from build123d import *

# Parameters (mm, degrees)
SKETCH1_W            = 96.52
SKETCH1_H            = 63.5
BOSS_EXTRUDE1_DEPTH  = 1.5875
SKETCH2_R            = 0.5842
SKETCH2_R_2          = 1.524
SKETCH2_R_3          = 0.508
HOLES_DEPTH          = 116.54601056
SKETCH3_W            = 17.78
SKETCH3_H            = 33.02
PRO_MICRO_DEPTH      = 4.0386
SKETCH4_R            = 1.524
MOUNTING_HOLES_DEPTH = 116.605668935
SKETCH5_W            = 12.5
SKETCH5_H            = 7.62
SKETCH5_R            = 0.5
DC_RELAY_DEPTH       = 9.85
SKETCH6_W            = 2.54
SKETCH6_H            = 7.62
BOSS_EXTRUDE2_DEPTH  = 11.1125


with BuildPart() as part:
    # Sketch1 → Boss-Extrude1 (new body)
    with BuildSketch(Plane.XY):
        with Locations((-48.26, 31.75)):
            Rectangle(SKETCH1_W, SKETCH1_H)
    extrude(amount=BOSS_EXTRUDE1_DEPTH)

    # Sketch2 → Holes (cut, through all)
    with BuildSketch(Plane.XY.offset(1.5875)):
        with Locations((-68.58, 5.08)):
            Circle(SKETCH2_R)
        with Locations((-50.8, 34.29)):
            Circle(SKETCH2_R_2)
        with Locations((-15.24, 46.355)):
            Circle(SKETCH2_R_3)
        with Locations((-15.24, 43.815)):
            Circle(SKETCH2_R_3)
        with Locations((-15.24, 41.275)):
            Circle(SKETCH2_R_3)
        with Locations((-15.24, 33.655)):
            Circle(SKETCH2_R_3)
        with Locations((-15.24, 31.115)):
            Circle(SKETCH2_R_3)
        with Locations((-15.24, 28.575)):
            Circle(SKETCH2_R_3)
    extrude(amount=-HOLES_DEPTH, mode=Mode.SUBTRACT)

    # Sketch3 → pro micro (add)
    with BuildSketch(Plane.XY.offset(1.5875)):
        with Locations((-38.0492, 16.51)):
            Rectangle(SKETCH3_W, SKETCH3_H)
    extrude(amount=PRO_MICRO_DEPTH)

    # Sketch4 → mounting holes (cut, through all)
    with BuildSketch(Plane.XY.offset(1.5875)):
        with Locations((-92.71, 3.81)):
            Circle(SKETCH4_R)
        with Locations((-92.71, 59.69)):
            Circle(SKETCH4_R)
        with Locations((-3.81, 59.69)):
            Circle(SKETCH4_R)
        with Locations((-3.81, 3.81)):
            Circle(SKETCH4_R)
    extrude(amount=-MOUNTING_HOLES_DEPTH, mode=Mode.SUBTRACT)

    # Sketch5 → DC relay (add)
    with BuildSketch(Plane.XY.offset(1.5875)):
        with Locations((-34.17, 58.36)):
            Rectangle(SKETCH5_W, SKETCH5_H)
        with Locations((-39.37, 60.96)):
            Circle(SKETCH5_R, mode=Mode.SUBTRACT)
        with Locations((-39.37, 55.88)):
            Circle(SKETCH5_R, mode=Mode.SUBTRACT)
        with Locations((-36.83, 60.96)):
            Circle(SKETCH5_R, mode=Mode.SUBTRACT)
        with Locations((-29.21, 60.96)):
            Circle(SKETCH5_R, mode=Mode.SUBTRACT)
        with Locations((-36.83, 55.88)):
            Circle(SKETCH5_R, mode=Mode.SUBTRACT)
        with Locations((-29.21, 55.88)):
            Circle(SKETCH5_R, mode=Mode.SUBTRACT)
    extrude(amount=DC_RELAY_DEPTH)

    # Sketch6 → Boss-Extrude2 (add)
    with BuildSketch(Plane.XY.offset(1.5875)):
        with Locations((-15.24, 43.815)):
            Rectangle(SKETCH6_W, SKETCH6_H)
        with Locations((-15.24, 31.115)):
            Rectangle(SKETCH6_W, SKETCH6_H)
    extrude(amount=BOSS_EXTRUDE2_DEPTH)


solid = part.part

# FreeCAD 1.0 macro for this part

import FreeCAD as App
import Part
import Sketcher
Q = App.Units.Quantity


def add_polygon(sketch, points):
    """Adds a closed chain of lines whose ends are joined by coincident constraints."""
    first, n = sketch.GeometryCount, len(points)
    for a, b in zip(points, points[1:] + points[:1]):
        sketch.addGeometry(Part.LineSegment(App.Vector(*a, 0), App.Vector(*b, 0)), False)
    for i in range(n):
        sketch.addConstraint(Sketcher.Constraint("Coincident", first + i, 2, first + (i + 1) % n, 1))

doc = App.newDocument("Part")
body = doc.addObject("PartDesign::Body", "Body")

# Sketch on XY plane
sketch1 = body.newObject("Sketcher::SketchObject", "Sketch")
sketch1.AttachmentSupport = (doc.getObject("XY_Plane"), [""])
sketch1.MapMode = "FlatFace"
add_polygon(sketch1, [(-97, 64), (-97, 0), (0, 0), (0, 64)])  # lines 0-3
sketch1.addConstraint([
    Sketcher.Constraint("Vertical", 0),
    Sketcher.Constraint("Horizontal", 1),
    Sketcher.Constraint("Vertical", 2),
    Sketcher.Constraint("Horizontal", 3),
    Sketcher.Constraint("Coincident", 1, 2, -1, 1),
    Sketcher.Constraint("DistanceX", 1, 1, 1, 2, Q("3.8 in")),
    Sketcher.Constraint("DistanceY", 0, 2, 0, 1, Q("2.5 in")),
])
pad1 = body.newObject("PartDesign::Pad", "Pad")
pad1.Profile = sketch1
pad1.Length = Q("0.0625 in")

# Sketch on XY plane
sketch2 = body.newObject("Sketcher::SketchObject", "Sketch001")
sketch2.AttachmentSupport = (doc.getObject("XY_Plane"), [""])
sketch2.MapMode = "FlatFace"
sketch2.AttachmentOffset = App.Placement(App.Vector(0, 0, 0.0625 * 25.4), App.Rotation())
sketch2.addGeometry([
    Part.Circle(App.Vector(-68.6, 5.1, 0), App.Vector(0, 0, 1), 0.6),  # 0
    Part.Circle(App.Vector(-50.8, 34.3, 0), App.Vector(0, 0, 1), 1.5),  # 1
    Part.Circle(App.Vector(-15.2, 46.4, 0), App.Vector(0, 0, 1), 0.5),  # 2
    Part.Circle(App.Vector(-15.2, 43.8, 0), App.Vector(0, 0, 1), 0.5),  # 3
    Part.Circle(App.Vector(-15.2, 41.3, 0), App.Vector(0, 0, 1), 0.5),  # 4
    Part.Circle(App.Vector(-15.2, 33.7, 0), App.Vector(0, 0, 1), 0.5),  # 5
    Part.Circle(App.Vector(-15.2, 31.1, 0), App.Vector(0, 0, 1), 0.5),  # 6
    Part.Circle(App.Vector(-15.2, 28.6, 0), App.Vector(0, 0, 1), 0.5),  # 7
], False)
sketch2.addConstraint([
    Sketcher.Constraint("Equal", 2, 3),
    Sketcher.Constraint("Equal", 3, 4),
    Sketcher.Constraint("Equal", 4, 5),
    Sketcher.Constraint("Equal", 5, 6),
    Sketcher.Constraint("Equal", 6, 7),
    Sketcher.Constraint("Vertical", 2, 3, 3, 3),
    Sketcher.Constraint("Vertical", 3, 3, 4, 3),
    Sketcher.Constraint("Vertical", 4, 3, 5, 3),
    Sketcher.Constraint("Vertical", 5, 3, 6, 3),
    Sketcher.Constraint("Vertical", 6, 3, 7, 3),
    Sketcher.Constraint("Diameter", 1, Q("0.12 in")),
    Sketcher.Constraint("Diameter", 2, Q("0.04 in")),
    Sketcher.Constraint("Diameter", 0, Q("0.046 in")),
    Sketcher.Constraint("DistanceX", 1, 3, -1, 1, Q("2 in")),
    Sketcher.Constraint("DistanceX", 0, 3, -1, 1, Q("2.7 in")),
    Sketcher.Constraint("DistanceY", -1, 1, 0, 3, Q("0.2 in")),
    Sketcher.Constraint("DistanceX", 2, 3, -1, 1, Q("0.6 in")),
    Sketcher.Constraint("DistanceY", 3, 3, 2, 3, Q("0.1 in")),
    Sketcher.Constraint("DistanceY", 4, 3, 3, 3, Q("0.1 in")),
    Sketcher.Constraint("DistanceY", 5, 3, 4, 3, Q("0.3 in")),
    Sketcher.Constraint("DistanceY", 6, 3, 5, 3, Q("0.1 in")),
    Sketcher.Constraint("DistanceY", 7, 3, 6, 3, Q("0.1 in")),
    Sketcher.Constraint("DistanceY", -1, 1, 1, 3, Q("1.35 in")),
    Sketcher.Constraint("DistanceY", -1, 1, 2, 3, Q("1.825 in")),
])
pocket1 = body.newObject("PartDesign::Pocket", "Pocket")
pocket1.Profile = sketch2
pocket1.Type = "ThroughAll"

# Sketch on XY plane
sketch3 = body.newObject("Sketcher::SketchObject", "Sketch002")
sketch3.AttachmentSupport = (doc.getObject("XY_Plane"), [""])
sketch3.MapMode = "FlatFace"
sketch3.AttachmentOffset = App.Placement(App.Vector(0, 0, 0.0625 * 25.4), App.Rotation())
add_polygon(sketch3, [(-47, 33), (-47, 0), (-29, 0), (-29, 33)])  # lines 0-3
sketch3.addConstraint([
    Sketcher.Constraint("Vertical", 0),
    Sketcher.Constraint("Horizontal", 1),
    Sketcher.Constraint("Vertical", 2),
    Sketcher.Constraint("Horizontal", 3),
    Sketcher.Constraint("PointOnObject", 0, 2, -1),
    Sketcher.Constraint("DistanceX", 1, 1, 1, 2, Q("0.7 in")),
    Sketcher.Constraint("DistanceY", 0, 2, 0, 1, Q("1.3 in")),
    Sketcher.Constraint("DistanceX", 0, 2, -1, 1, Q("1.848 in")),
])
pad2 = body.newObject("PartDesign::Pad", "Pad001")
pad2.Profile = sketch3
pad2.Length = Q("0.159 in")

# Sketch on XY plane
sketch4 = body.newObject("Sketcher::SketchObject", "Sketch003")
sketch4.AttachmentSupport = (doc.getObject("XY_Plane"), [""])
sketch4.MapMode = "FlatFace"
sketch4.AttachmentOffset = App.Placement(App.Vector(0, 0, 0.0625 * 25.4), App.Rotation())
sketch4.addGeometry([
    Part.Circle(App.Vector(-92.7, 3.8, 0), App.Vector(0, 0, 1), 1.5),
    Part.Circle(App.Vector(-92.7, 59.7, 0), App.Vector(0, 0, 1), 1.5),
    Part.Circle(App.Vector(-3.8, 59.7, 0), App.Vector(0, 0, 1), 1.5),
    Part.Circle(App.Vector(-3.8, 3.8, 0), App.Vector(0, 0, 1), 1.5),
], False)
sketch4.addConstraint([
    Sketcher.Constraint("Equal", 0, 1),
    Sketcher.Constraint("Equal", 1, 2),
    Sketcher.Constraint("Equal", 2, 3),
    Sketcher.Constraint("Horizontal", 1, 3, 2, 3),
    Sketcher.Constraint("Horizontal", 0, 3, 3, 3),
    Sketcher.Constraint("Vertical", 0, 3, 1, 3),
    Sketcher.Constraint("Vertical", 2, 3, 3, 3),
    Sketcher.Constraint("Diameter", 0, Q("0.12 in")),
    Sketcher.Constraint("DistanceY", 0, 3, 1, 3, Q("2.2 in")),
    Sketcher.Constraint("DistanceX", 1, 3, 2, 3, Q("3.5 in")),
    Sketcher.Constraint("DistanceX", 0, 3, -1, 1, Q("3.65 in")),
    Sketcher.Constraint("DistanceY", -1, 1, 0, 3, Q("0.15 in")),
])
pocket2 = body.newObject("PartDesign::Pocket", "Pocket001")
pocket2.Profile = sketch4
pocket2.Type = "ThroughAll"

# Sketch on XY plane
sketch5 = body.newObject("Sketcher::SketchObject", "Sketch004")
sketch5.AttachmentSupport = (doc.getObject("XY_Plane"), [""])
sketch5.MapMode = "FlatFace"
sketch5.AttachmentOffset = App.Placement(App.Vector(0, 0, 0.0625 * 25.4), App.Rotation())
add_polygon(sketch5, [(-40.4, 62.2), (-40.4, 54.5), (-27.9, 54.5), (-27.9, 62.2)])  # lines 0-3
sketch5.addGeometry(Part.Circle(App.Vector(-39.4, 55.9, 0), App.Vector(0, 0, 1), 0.5), False)  # 4
sketch5.addGeometry(Part.Circle(App.Vector(-36.8, 55.9, 0), App.Vector(0, 0, 1), 0.5), False)  # 5
sketch5.addGeometry(Part.Circle(App.Vector(-29.2, 55.9, 0), App.Vector(0, 0, 1), 0.5), False)  # 6
sketch5.addGeometry(Part.Circle(App.Vector(-39.4, 61, 0), App.Vector(0, 0, 1), 0.5), False)  # 7
sketch5.addGeometry(Part.Circle(App.Vector(-36.8, 61, 0), App.Vector(0, 0, 1), 0.5), False)  # 8
sketch5.addGeometry(Part.Circle(App.Vector(-29.2, 61, 0), App.Vector(0, 0, 1), 0.5), False)  # 9
sketch5.addConstraint([
    Sketcher.Constraint("Vertical", 0),
    Sketcher.Constraint("Horizontal", 1),
    Sketcher.Constraint("Vertical", 2),
    Sketcher.Constraint("Horizontal", 3),
    Sketcher.Constraint("Equal", 4, 5),
    Sketcher.Constraint("Equal", 5, 6),
    Sketcher.Constraint("Equal", 6, 7),
    Sketcher.Constraint("Equal", 7, 8),
    Sketcher.Constraint("Equal", 8, 9),
    Sketcher.Constraint("Horizontal", 4, 3, 5, 3),
    Sketcher.Constraint("Horizontal", 5, 3, 6, 3),
    Sketcher.Constraint("Horizontal", 7, 3, 8, 3),
    Sketcher.Constraint("Horizontal", 8, 3, 9, 3),
    Sketcher.Constraint("Vertical", 4, 3, 7, 3),
    Sketcher.Constraint("Vertical", 5, 3, 8, 3),
    Sketcher.Constraint("Vertical", 6, 3, 9, 3),
    Sketcher.Constraint("DistanceY", 0, 2, 0, 1, Q("0.3 in")),
    Sketcher.Constraint("DistanceY", -1, 1, 4, 3, Q("2.2 in")),
    Sketcher.Constraint("DistanceY", -1, 1, 7, 3, Q("2.4 in")),
    Sketcher.Constraint("DistanceX", 4, 3, 5, 3, Q("0.1 in")),
    Sketcher.Constraint("DistanceX", 5, 3, 6, 3, Q("0.3 in")),
    Sketcher.Constraint("Diameter", 4, Q("1 mm")),
    Sketcher.Constraint("DistanceX", 4, 3, -1, 1, Q("1.55 in")),
    Sketcher.Constraint("DistanceX", 1, 1, 1, 2, Q("12.5 mm")),
    Sketcher.Constraint("DistanceX", 0, 2, -1, 1, Q("40.42 mm")),
    Sketcher.Constraint("DistanceY", -1, 1, 0, 2, Q("54.55 mm")),
])
pad3 = body.newObject("PartDesign::Pad", "Pad002")
pad3.Profile = sketch5
pad3.Length = 9.85

# Sketch on XY plane
sketch6 = body.newObject("Sketcher::SketchObject", "Sketch005")
sketch6.AttachmentSupport = (doc.getObject("XY_Plane"), [""])
sketch6.MapMode = "FlatFace"
sketch6.AttachmentOffset = App.Placement(App.Vector(0, 0, 0.0625 * 25.4), App.Rotation())
add_polygon(sketch6, [(-16.5, 47.6), (-16.5, 40), (-14, 40), (-14, 47.6)])  # lines 0-3
add_polygon(sketch6, [(-16.5, 34.9), (-16.5, 27.3), (-14, 27.3), (-14, 34.9)])  # lines 4-7
sketch6.addConstraint([
    Sketcher.Constraint("Vertical", 0),
    Sketcher.Constraint("Horizontal", 1),
    Sketcher.Constraint("Vertical", 2),
    Sketcher.Constraint("Horizontal", 3),
    Sketcher.Constraint("Vertical", 4),
    Sketcher.Constraint("Horizontal", 5),
    Sketcher.Constraint("Vertical", 6),
    Sketcher.Constraint("Horizontal", 7),
    Sketcher.Constraint("Vertical", 3, 2, 4, 2),
    Sketcher.Constraint("Vertical", 2, 2, 5, 2),
    Sketcher.Constraint("Equal", 2, 4),
    Sketcher.Constraint("DistanceX", 1, 1, 1, 2, Q("0.1 in")),
    Sketcher.Constraint("DistanceY", 0, 2, 0, 1, Q("0.3 in")),
    Sketcher.Constraint("DistanceY", 4, 2, 0, 2, Q("0.5 in")),
    Sketcher.Constraint("DistanceX", 0, 2, -1, 1, Q("0.65 in")),
    Sketcher.Constraint("DistanceY", -1, 1, 0, 2, Q("1.575 in")),
])
pad4 = body.newObject("PartDesign::Pad", "Pad003")
pad4.Profile = sketch6
pad4.Length = Q("0.4375 in")

doc.recompute()
